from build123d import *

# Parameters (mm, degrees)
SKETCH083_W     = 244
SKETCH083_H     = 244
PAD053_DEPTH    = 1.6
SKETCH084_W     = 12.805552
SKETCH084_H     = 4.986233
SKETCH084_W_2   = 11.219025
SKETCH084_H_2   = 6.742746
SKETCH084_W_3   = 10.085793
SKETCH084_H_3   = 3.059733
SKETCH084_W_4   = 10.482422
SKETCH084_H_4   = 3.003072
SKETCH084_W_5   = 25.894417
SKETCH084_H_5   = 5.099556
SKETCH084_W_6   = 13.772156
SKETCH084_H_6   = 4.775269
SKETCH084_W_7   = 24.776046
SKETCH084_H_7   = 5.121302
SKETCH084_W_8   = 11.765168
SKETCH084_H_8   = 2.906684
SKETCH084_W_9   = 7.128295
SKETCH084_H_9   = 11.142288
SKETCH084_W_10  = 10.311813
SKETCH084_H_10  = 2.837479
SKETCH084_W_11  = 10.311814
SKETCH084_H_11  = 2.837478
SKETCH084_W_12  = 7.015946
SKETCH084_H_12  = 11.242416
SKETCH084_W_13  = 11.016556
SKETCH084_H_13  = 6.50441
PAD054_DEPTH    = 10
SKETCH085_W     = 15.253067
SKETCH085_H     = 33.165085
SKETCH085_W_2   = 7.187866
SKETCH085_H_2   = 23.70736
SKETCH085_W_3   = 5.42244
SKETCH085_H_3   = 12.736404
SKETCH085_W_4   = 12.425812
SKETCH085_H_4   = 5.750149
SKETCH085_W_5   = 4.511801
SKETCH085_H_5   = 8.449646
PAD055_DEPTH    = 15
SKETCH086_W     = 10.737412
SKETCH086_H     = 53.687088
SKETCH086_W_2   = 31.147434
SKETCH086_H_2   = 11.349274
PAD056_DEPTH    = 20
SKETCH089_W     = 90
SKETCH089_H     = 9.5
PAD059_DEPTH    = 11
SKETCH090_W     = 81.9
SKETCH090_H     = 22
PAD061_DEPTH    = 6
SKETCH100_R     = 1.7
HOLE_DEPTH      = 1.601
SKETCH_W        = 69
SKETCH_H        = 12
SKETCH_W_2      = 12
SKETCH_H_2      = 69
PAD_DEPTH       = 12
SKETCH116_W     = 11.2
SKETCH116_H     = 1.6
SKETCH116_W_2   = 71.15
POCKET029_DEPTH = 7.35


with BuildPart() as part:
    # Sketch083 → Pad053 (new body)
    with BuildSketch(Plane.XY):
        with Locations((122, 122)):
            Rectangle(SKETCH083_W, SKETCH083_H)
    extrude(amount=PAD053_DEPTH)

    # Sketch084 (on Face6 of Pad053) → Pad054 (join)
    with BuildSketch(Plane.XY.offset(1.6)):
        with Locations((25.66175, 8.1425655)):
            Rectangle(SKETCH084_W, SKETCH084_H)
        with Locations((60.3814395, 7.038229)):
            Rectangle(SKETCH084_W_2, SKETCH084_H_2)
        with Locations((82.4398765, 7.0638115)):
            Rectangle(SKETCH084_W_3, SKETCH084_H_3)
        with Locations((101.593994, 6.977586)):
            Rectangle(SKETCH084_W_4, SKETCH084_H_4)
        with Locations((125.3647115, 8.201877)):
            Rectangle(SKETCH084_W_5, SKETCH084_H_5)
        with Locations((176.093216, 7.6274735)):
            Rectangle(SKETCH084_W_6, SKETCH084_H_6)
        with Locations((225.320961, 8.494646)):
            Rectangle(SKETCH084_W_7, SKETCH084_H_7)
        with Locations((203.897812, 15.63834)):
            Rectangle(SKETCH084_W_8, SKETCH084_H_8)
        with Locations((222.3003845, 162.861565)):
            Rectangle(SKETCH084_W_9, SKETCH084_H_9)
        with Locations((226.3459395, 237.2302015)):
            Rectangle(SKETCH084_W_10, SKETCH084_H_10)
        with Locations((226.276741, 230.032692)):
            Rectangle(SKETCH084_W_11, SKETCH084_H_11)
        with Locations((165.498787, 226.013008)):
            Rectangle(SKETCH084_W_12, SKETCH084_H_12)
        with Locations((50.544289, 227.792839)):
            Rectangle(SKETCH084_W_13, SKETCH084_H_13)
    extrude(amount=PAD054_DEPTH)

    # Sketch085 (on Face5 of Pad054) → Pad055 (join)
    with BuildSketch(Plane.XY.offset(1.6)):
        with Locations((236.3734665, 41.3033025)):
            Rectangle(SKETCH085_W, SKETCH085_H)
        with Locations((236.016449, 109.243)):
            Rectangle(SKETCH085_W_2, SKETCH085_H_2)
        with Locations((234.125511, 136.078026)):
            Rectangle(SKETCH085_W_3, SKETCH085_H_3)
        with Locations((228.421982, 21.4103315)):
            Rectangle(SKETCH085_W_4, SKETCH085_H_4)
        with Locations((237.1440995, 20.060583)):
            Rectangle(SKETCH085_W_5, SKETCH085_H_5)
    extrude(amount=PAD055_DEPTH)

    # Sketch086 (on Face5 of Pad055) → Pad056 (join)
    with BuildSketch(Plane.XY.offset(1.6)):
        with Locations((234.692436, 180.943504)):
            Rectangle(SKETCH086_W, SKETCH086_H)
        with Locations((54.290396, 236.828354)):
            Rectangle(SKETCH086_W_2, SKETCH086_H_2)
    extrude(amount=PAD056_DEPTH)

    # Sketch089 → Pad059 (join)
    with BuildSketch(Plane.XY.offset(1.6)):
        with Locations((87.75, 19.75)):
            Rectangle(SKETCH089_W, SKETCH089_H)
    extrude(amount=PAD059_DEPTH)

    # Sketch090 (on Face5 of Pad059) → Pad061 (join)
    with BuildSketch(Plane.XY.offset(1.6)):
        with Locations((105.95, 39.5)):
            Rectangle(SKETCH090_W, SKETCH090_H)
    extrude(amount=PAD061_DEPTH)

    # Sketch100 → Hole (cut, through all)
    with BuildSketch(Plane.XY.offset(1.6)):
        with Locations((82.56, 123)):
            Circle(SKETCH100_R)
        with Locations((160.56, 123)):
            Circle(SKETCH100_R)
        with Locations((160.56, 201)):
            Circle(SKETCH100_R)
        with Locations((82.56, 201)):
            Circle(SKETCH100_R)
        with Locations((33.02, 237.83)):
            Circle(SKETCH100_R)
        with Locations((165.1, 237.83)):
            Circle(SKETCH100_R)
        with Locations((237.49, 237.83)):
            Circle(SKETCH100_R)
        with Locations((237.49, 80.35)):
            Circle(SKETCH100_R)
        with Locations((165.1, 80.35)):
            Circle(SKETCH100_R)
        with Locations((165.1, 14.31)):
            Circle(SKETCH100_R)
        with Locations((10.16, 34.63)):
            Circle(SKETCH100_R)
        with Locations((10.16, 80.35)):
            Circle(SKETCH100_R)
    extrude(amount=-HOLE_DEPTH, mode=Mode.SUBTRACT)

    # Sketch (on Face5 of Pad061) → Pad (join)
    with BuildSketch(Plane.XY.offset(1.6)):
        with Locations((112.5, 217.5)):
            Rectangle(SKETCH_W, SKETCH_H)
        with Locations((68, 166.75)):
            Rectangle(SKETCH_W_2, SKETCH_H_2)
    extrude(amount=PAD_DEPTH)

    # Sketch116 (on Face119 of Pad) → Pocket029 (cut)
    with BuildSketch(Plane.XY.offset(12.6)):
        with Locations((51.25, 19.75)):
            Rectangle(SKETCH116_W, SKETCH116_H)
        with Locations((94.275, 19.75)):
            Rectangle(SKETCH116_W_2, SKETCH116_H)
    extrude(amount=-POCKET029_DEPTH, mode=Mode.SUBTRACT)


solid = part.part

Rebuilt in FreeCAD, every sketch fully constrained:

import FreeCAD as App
import Part
import Sketcher

V = App.Vector
Q = App.Units.Quantity

doc = App.newDocument("Part")
params = doc.addObject("Spreadsheet::Sheet", "Params")
for row, (alias, value) in enumerate([
    ("sketch1_width", "244 mm"),
    ("pad1_length", "1.6 mm"),
    ("pad2_length", "10 mm"),
    ("pad3_length", "15 mm"),
    ("pad4_length", "20 mm"),
    ("sketch5_width", "90 mm"),
    ("sketch5_height", "9.5 mm"),
    ("pad5_length", "11 mm"),
    ("sketch6_height", "22 mm"),
    ("sketch6_width", "81.9 mm"),
    ("pad6_length", "6 mm"),
    ("sketch7_diameter", "3.4 mm"),
    ("sketch8_width", "69 mm"),
    ("sketch8_width2", "12 mm"),
    ("pad7_length", "12 mm"),
    ("sketch9_width", "11.2 mm"),
    ("sketch9_height", "1.6 mm"),
    ("sketch9_width2", "71.15 mm"),
    ("pocket2_length", "7.35 mm"),
], start=1):
    params.set(f"A{row}", alias)
    params.set(f"B{row}", "=" + value)
    params.setAlias(f"B{row}", alias)

body = doc.addObject("PartDesign::Body", "Body")

sketch1 = body.newObject("Sketcher::SketchObject", "Sketch")
sketch1.AttachmentSupport = (doc.getObject("XY_Plane"), [""])
sketch1.MapMode = "FlatFace"
sketch1.addGeometry([
    Part.LineSegment(V(0, 244, 0), V(0, 0, 0)),
    Part.LineSegment(V(0, 0, 0), V(244, 0, 0)),
    Part.LineSegment(V(244, 0, 0), V(244, 244, 0)),
    Part.LineSegment(V(244, 244, 0), V(0, 244, 0)),
], False)
sketch1.addConstraint([
    Sketcher.Constraint("Coincident", 0, 2, 1, 1),
    Sketcher.Constraint("Coincident", 1, 2, 2, 1),
    Sketcher.Constraint("Coincident", 2, 2, 3, 1),
    Sketcher.Constraint("Coincident", 3, 2, 0, 1),
    Sketcher.Constraint("Vertical", 0),
    Sketcher.Constraint("Horizontal", 1),
    Sketcher.Constraint("Vertical", 2),
    Sketcher.Constraint("Horizontal", 3),
    Sketcher.Constraint("Coincident", 0, 2, -1, 1),
    Sketcher.Constraint("Equal", 3, 0),
    Sketcher.Constraint("DistanceX", 1, 1, 1, 2, Q("244 mm")),
])
sketch1.setExpression("Constraints[10]", "Params.sketch1_width")
pad1 = body.newObject("PartDesign::Pad", "Pad")
pad1.Profile = sketch1
pad1.setExpression("Length", "Params.pad1_length")

sketch2 = body.newObject("Sketcher::SketchObject", "Sketch001")
sketch2.AttachmentSupport = (doc.getObject("XY_Plane"), [""])
sketch2.MapMode = "FlatFace"
sketch2.AttachmentOffset = App.Placement(V(0, 0, 1.6), App.Rotation())
sketch2.addGeometry([
    Part.LineSegment(V(19.3, 10.6, 0), V(19.3, 5.6, 0)),
    Part.LineSegment(V(19.3, 5.6, 0), V(32.1, 5.6, 0)),
    Part.LineSegment(V(32.1, 5.6, 0), V(32.1, 10.6, 0)),
    Part.LineSegment(V(32.1, 10.6, 0), V(19.3, 10.6, 0)),
    Part.LineSegment(V(54.8, 10.4, 0), V(54.8, 3.7, 0)),
    Part.LineSegment(V(54.8, 3.7, 0), V(66, 3.7, 0)),
    Part.LineSegment(V(66, 3.7, 0), V(66, 10.4, 0)),
    Part.LineSegment(V(66, 10.4, 0), V(54.8, 10.4, 0)),
    Part.LineSegment(V(77.4, 8.6, 0), V(77.4, 5.5, 0)),
    Part.LineSegment(V(77.4, 5.5, 0), V(87.5, 5.5, 0)),
    Part.LineSegment(V(87.5, 5.5, 0), V(87.5, 8.6, 0)),
    Part.LineSegment(V(87.5, 8.6, 0), V(77.4, 8.6, 0)),
    Part.LineSegment(V(96.4, 8.5, 0), V(96.4, 5.5, 0)),
    Part.LineSegment(V(96.4, 5.5, 0), V(106.8, 5.5, 0)),
    Part.LineSegment(V(106.8, 5.5, 0), V(106.8, 8.5, 0)),
    Part.LineSegment(V(106.8, 8.5, 0), V(96.4, 8.5, 0)),
    Part.LineSegment(V(112.4, 10.8, 0), V(112.4, 5.7, 0)),
    Part.LineSegment(V(112.4, 5.7, 0), V(138.3, 5.7, 0)),
    Part.LineSegment(V(138.3, 5.7, 0), V(138.3, 10.8, 0)),
    Part.LineSegment(V(138.3, 10.8, 0), V(112.4, 10.8, 0)),
    Part.LineSegment(V(169.2, 10, 0), V(169.2, 5.2, 0)),
    Part.LineSegment(V(169.2, 5.2, 0), V(183, 5.2, 0)),
    Part.LineSegment(V(183, 5.2, 0), V(183, 10, 0)),
    Part.LineSegment(V(183, 10, 0), V(169.2, 10, 0)),
    Part.LineSegment(V(212.9, 11.1, 0), V(212.9, 5.9, 0)),
    Part.LineSegment(V(212.9, 5.9, 0), V(237.7, 5.9, 0)),
    Part.LineSegment(V(237.7, 5.9, 0), V(237.7, 11.1, 0)),
    Part.LineSegment(V(237.7, 11.1, 0), V(212.9, 11.1, 0)),
    Part.LineSegment(V(198, 17.1, 0), V(198, 14.2, 0)),
    Part.LineSegment(V(198, 14.2, 0), V(209.8, 14.2, 0)),
    Part.LineSegment(V(209.8, 14.2, 0), V(209.8, 17.1, 0)),
    Part.LineSegment(V(209.8, 17.1, 0), V(198, 17.1, 0)),
    Part.LineSegment(V(218.7, 168.4, 0), V(218.7, 157.3, 0)),
    Part.LineSegment(V(218.7, 157.3, 0), V(225.9, 157.3, 0)),
    Part.LineSegment(V(225.9, 157.3, 0), V(225.9, 168.4, 0)),
    Part.LineSegment(V(225.9, 168.4, 0), V(218.7, 168.4, 0)),
    Part.LineSegment(V(221.2, 238.6, 0), V(221.2, 235.8, 0)),
    Part.LineSegment(V(221.2, 235.8, 0), V(231.5, 235.8, 0)),
    Part.LineSegment(V(231.5, 235.8, 0), V(231.5, 238.6, 0)),
    Part.LineSegment(V(231.5, 238.6, 0), V(221.2, 238.6, 0)),
    Part.LineSegment(V(221.1, 231.5, 0), V(221.1, 228.6, 0)),
    Part.LineSegment(V(221.1, 228.6, 0), V(231.4, 228.6, 0)),
    Part.LineSegment(V(231.4, 228.6, 0), V(231.4, 231.5, 0)),
    Part.LineSegment(V(231.4, 231.5, 0), V(221.1, 231.5, 0)),
    Part.LineSegment(V(162, 231.6, 0), V(162, 220.4, 0)),
    Part.LineSegment(V(162, 220.4, 0), V(169, 220.4, 0)),
    Part.LineSegment(V(169, 220.4, 0), V(169, 231.6, 0)),
    Part.LineSegment(V(169, 231.6, 0), V(162, 231.6, 0)),
    Part.LineSegment(V(45, 231, 0), V(45, 224.5, 0)),
    Part.LineSegment(V(45, 224.5, 0), V(56.1, 224.5, 0)),
    Part.LineSegment(V(56.1, 224.5, 0), V(56.1, 231, 0)),
    Part.LineSegment(V(56.1, 231, 0), V(45, 231, 0)),
], False)
sketch2.addConstraint([
    Sketcher.Constraint("Coincident", 0, 2, 1, 1),
    Sketcher.Constraint("Coincident", 1, 2, 2, 1),
    Sketcher.Constraint("Coincident", 2, 2, 3, 1),
    Sketcher.Constraint("Coincident", 3, 2, 0, 1),
    Sketcher.Constraint("Coincident", 4, 2, 5, 1),
    Sketcher.Constraint("Coincident", 5, 2, 6, 1),
    Sketcher.Constraint("Coincident", 6, 2, 7, 1),
    Sketcher.Constraint("Coincident", 7, 2, 4, 1),
    Sketcher.Constraint("Coincident", 8, 2, 9, 1),
    Sketcher.Constraint("Coincident", 9, 2, 10, 1),
    Sketcher.Constraint("Coincident", 10, 2, 11, 1),
    Sketcher.Constraint("Coincident", 11, 2, 8, 1),
    Sketcher.Constraint("Coincident", 12, 2, 13, 1),
    Sketcher.Constraint("Coincident", 13, 2, 14, 1),
    Sketcher.Constraint("Coincident", 14, 2, 15, 1),
    Sketcher.Constraint("Coincident", 15, 2, 12, 1),
    Sketcher.Constraint("Coincident", 16, 2, 17, 1),
    Sketcher.Constraint("Coincident", 17, 2, 18, 1),
    Sketcher.Constraint("Coincident", 18, 2, 19, 1),
    Sketcher.Constraint("Coincident", 19, 2, 16, 1),
    Sketcher.Constraint("Coincident", 20, 2, 21, 1),
    Sketcher.Constraint("Coincident", 21, 2, 22, 1),
    Sketcher.Constraint("Coincident", 22, 2, 23, 1),
    Sketcher.Constraint("Coincident", 23, 2, 20, 1),
    Sketcher.Constraint("Coincident", 24, 2, 25, 1),
    Sketcher.Constraint("Coincident", 25, 2, 26, 1),
    Sketcher.Constraint("Coincident", 26, 2, 27, 1),
    Sketcher.Constraint("Coincident", 27, 2, 24, 1),
    Sketcher.Constraint("Coincident", 28, 2, 29, 1),
    Sketcher.Constraint("Coincident", 29, 2, 30, 1),
    Sketcher.Constraint("Coincident", 30, 2, 31, 1),
    Sketcher.Constraint("Coincident", 31, 2, 28, 1),
    Sketcher.Constraint("Coincident", 32, 2, 33, 1),
    Sketcher.Constraint("Coincident", 33, 2, 34, 1),
    Sketcher.Constraint("Coincident", 34, 2, 35, 1),
    Sketcher.Constraint("Coincident", 35, 2, 32, 1),
    Sketcher.Constraint("Coincident", 36, 2, 37, 1),
    Sketcher.Constraint("Coincident", 37, 2, 38, 1),
    Sketcher.Constraint("Coincident", 38, 2, 39, 1),
    Sketcher.Constraint("Coincident", 39, 2, 36, 1),
    Sketcher.Constraint("Coincident", 40, 2, 41, 1),
    Sketcher.Constraint("Coincident", 41, 2, 42, 1),
    Sketcher.Constraint("Coincident", 42, 2, 43, 1),
    Sketcher.Constraint("Coincident", 43, 2, 40, 1),
    Sketcher.Constraint("Coincident", 44, 2, 45, 1),
    Sketcher.Constraint("Coincident", 45, 2, 46, 1),
    Sketcher.Constraint("Coincident", 46, 2, 47, 1),
    Sketcher.Constraint("Coincident", 47, 2, 44, 1),
    Sketcher.Constraint("Coincident", 48, 2, 49, 1),
    Sketcher.Constraint("Coincident", 49, 2, 50, 1),
    Sketcher.Constraint("Coincident", 50, 2, 51, 1),
    Sketcher.Constraint("Coincident", 51, 2, 48, 1),
    Sketcher.Constraint("Vertical", 0),
    Sketcher.Constraint("Horizontal", 1),
    Sketcher.Constraint("Vertical", 2),
    Sketcher.Constraint("Horizontal", 3),
    Sketcher.Constraint("Vertical", 4),
    Sketcher.Constraint("Horizontal", 5),
    Sketcher.Constraint("Vertical", 6),
    Sketcher.Constraint("Horizontal", 7),
    Sketcher.Constraint("Vertical", 8),
    Sketcher.Constraint("Horizontal", 9),
    Sketcher.Constraint("Vertical", 10),
    Sketcher.Constraint("Horizontal", 11),
    Sketcher.Constraint("Vertical", 12),
    Sketcher.Constraint("Horizontal", 13),
    Sketcher.Constraint("Vertical", 14),
    Sketcher.Constraint("Horizontal", 15),
    Sketcher.Constraint("Vertical", 16),
    Sketcher.Constraint("Horizontal", 17),
    Sketcher.Constraint("Vertical", 18),
    Sketcher.Constraint("Horizontal", 19),
    Sketcher.Constraint("Vertical", 20),
    Sketcher.Constraint("Horizontal", 21),
    Sketcher.Constraint("Vertical", 22),
    Sketcher.Constraint("Horizontal", 23),
    Sketcher.Constraint("Vertical", 24),
    Sketcher.Constraint("Horizontal", 25),
    Sketcher.Constraint("Vertical", 26),
    Sketcher.Constraint("Horizontal", 27),
    Sketcher.Constraint("Vertical", 28),
    Sketcher.Constraint("Horizontal", 29),
    Sketcher.Constraint("Vertical", 30),
    Sketcher.Constraint("Horizontal", 31),
    Sketcher.Constraint("Vertical", 32),
    Sketcher.Constraint("Horizontal", 33),
    Sketcher.Constraint("Vertical", 34),
    Sketcher.Constraint("Horizontal", 35),
    Sketcher.Constraint("Vertical", 36),
    Sketcher.Constraint("Horizontal", 37),
    Sketcher.Constraint("Vertical", 38),
    Sketcher.Constraint("Horizontal", 39),
    Sketcher.Constraint("Vertical", 40),
    Sketcher.Constraint("Horizontal", 41),
    Sketcher.Constraint("Vertical", 42),
    Sketcher.Constraint("Horizontal", 43),
    Sketcher.Constraint("Vertical", 44),
    Sketcher.Constraint("Horizontal", 45),
    Sketcher.Constraint("Vertical", 46),
    Sketcher.Constraint("Horizontal", 47),
    Sketcher.Constraint("Vertical", 48),
    Sketcher.Constraint("Horizontal", 49),
    Sketcher.Constraint("Vertical", 50),
    Sketcher.Constraint("Horizontal", 51),
    Sketcher.Constraint("Equal", 39, 41),
    Sketcher.Constraint("Equal", 38, 40),
    Sketcher.Constraint("DistanceY", 24, 2, 24, 1, Q("5.121302 mm")),
    Sketcher.Constraint("DistanceY", 20, 2, 20, 1, Q("4.775269 mm")),
    Sketcher.Constraint("DistanceY", 36, 2, 36, 1, Q("2.837479 mm")),
    Sketcher.Constraint("DistanceY", 48, 2, 48, 1, Q("6.50441 mm")),
    Sketcher.Constraint("DistanceY", -1, 1, 16, 2, Q("5.652099 mm")),
    Sketcher.Constraint("DistanceY", -1, 1, 44, 2, Q("220.3918 mm")),
    Sketcher.Constraint("DistanceX", 1, 2, 4, 2, Q("22.707401 mm")),
    Sketcher.Constraint("DistanceX", 20, 2, 24, 2, Q("43.7258 mm")),
    Sketcher.Constraint("DistanceY", 27, 2, 28, 2, Q("3.129701 mm")),
    Sketcher.Constraint("DistanceX", 22, 2, 29, 2, Q("26.801102 mm")),
    Sketcher.Constraint("DistanceX", 27, 2, 32, 2, Q("5.803299 mm")),
    Sketcher.Constraint("DistanceX", 36, 2, 34, 2, Q("4.674499 mm")),
    Sketcher.Constraint("DistanceX", 40, 2, 36, 2, Q("0.069199 mm")),
    Sketcher.Constraint("DistanceX", 1, 1, 1, 2, Q("12.805552 mm")),
    Sketcher.Constraint("DistanceX", 5, 1, 5, 2, Q("11.219025 mm")),
    Sketcher.Constraint("DistanceX", 9, 1, 9, 2, Q("10.085793 mm")),
    Sketcher.Constraint("DistanceX", 13, 1, 13, 2, Q("10.482422 mm")),
    Sketcher.Constraint("DistanceX", 17, 1, 17, 2, Q("25.894417 mm")),
    Sketcher.Constraint("DistanceX", 21, 1, 21, 2, Q("13.772156 mm")),
    Sketcher.Constraint("DistanceX", 25, 1, 25, 2, Q("24.776046 mm")),
    Sketcher.Constraint("DistanceX", 29, 1, 29, 2, Q("11.765168 mm")),
    Sketcher.Constraint("DistanceX", 33, 1, 33, 2, Q("7.128295 mm")),
    Sketcher.Constraint("DistanceX", 37, 1, 37, 2, Q("10.311813 mm")),
    Sketcher.Constraint("DistanceX", 45, 1, 45, 2, Q("7.015946 mm")),
    Sketcher.Constraint("DistanceX", 49, 1, 49, 2, Q("11.016556 mm")),
    Sketcher.Constraint("DistanceY", 0, 2, 0, 1, Q("4.986233 mm")),
    Sketcher.Constraint("DistanceY", 4, 2, 4, 1, Q("6.742746 mm")),
    Sketcher.Constraint("DistanceY", 8, 2, 8, 1, Q("3.059733 mm")),
    Sketcher.Constraint("DistanceY", 12, 2, 12, 1, Q("3.003072 mm")),
    Sketcher.Constraint("DistanceY", 16, 2, 16, 1, Q("5.099556 mm")),
    Sketcher.Constraint("DistanceY", 28, 2, 28, 1, Q("2.906684 mm")),
    Sketcher.Constraint("DistanceY", 32, 2, 32, 1, Q("11.142288 mm")),
    Sketcher.Constraint("DistanceY", 44, 2, 44, 1, Q("11.242416 mm")),
    Sketcher.Constraint("DistanceY", -1, 1, 0, 2, Q("5.649449 mm")),
    Sketcher.Constraint("DistanceX", -1, 1, 5, 2, Q("65.990952 mm")),
    Sketcher.Constraint("DistanceX", -1, 1, 8, 2, Q("77.39698 mm")),
    Sketcher.Constraint("DistanceY", -1, 1, 12, 2, Q("5.47605 mm")),
    Sketcher.Constraint("DistanceX", -1, 1, 17, 2, Q("138.31192 mm")),
    Sketcher.Constraint("DistanceY", -1, 1, 20, 2, Q("5.239839 mm")),
    Sketcher.Constraint("DistanceX", -1, 1, 24, 2, Q("212.932938 mm")),
    Sketcher.Constraint("DistanceY", -1, 1, 30, 2, Q("17.091682 mm")),
    Sketcher.Constraint("DistanceY", -1, 1, 32, 2, Q("157.290421 mm")),
    Sketcher.Constraint("DistanceY", -1, 1, 36, 2, Q("235.811462 mm")),
    Sketcher.Constraint("DistanceY", -1, 1, 42, 2, Q("231.451431 mm")),
    Sketcher.Constraint("DistanceX", -1, 1, 45, 2, Q("169.00676 mm")),
    Sketcher.Constraint("DistanceX", -1, 1, 48, 2, Q("45.036011 mm")),
    Sketcher.Constraint("DistanceY", 6, 2, 2, 2, Q("0.22608 mm")),
    Sketcher.Constraint("DistanceY", 5, 2, 8, 2, Q("1.867089 mm")),
    Sketcher.Constraint("DistanceX", 9, 2, 12, 2, Q("8.87001 mm")),
    Sketcher.Constraint("DistanceY", 48, 2, 47, 2, Q("7.093582 mm")),
])
pad2 = body.newObject("PartDesign::Pad", "Pad001")
pad2.Profile = sketch2
pad2.setExpression("Length", "Params.pad2_length")

sketch3 = body.newObject("Sketcher::SketchObject", "Sketch002")
sketch3.AttachmentSupport = (doc.getObject("XY_Plane"), [""])
sketch3.MapMode = "FlatFace"
sketch3.AttachmentOffset = App.Placement(V(0, 0, 1.6), App.Rotation())
sketch3.addGeometry([
    Part.LineSegment(V(228.7, 57.9, 0), V(228.7, 24.7, 0)),
    Part.LineSegment(V(228.7, 24.7, 0), V(244, 24.7, 0)),
    Part.LineSegment(V(244, 24.7, 0), V(244, 57.9, 0)),
    Part.LineSegment(V(244, 57.9, 0), V(228.7, 57.9, 0)),
    Part.LineSegment(V(232.4, 121.1, 0), V(232.4, 97.4, 0)),
    Part.LineSegment(V(232.4, 97.4, 0), V(239.6, 97.4, 0)),
    Part.LineSegment(V(239.6, 97.4, 0), V(239.6, 121.1, 0)),
    Part.LineSegment(V(239.6, 121.1, 0), V(232.4, 121.1, 0)),
    Part.LineSegment(V(231.4, 142.4, 0), V(231.4, 129.7, 0)),
    Part.LineSegment(V(231.4, 129.7, 0), V(236.8, 129.7, 0)),
    Part.LineSegment(V(236.8, 129.7, 0), V(236.8, 142.4, 0)),
    Part.LineSegment(V(236.8, 142.4, 0), V(231.4, 142.4, 0)),
    Part.LineSegment(V(222.2, 24.3, 0), V(222.2, 18.5, 0)),
    Part.LineSegment(V(222.2, 18.5, 0), V(234.6, 18.5, 0)),
    Part.LineSegment(V(234.6, 18.5, 0), V(234.6, 24.3, 0)),
    Part.LineSegment(V(234.6, 24.3, 0), V(222.2, 24.3, 0)),
    Part.LineSegment(V(234.9, 24.3, 0), V(234.9, 15.8, 0)),
    Part.LineSegment(V(234.9, 15.8, 0), V(239.4, 15.8, 0)),
    Part.LineSegment(V(239.4, 15.8, 0), V(239.4, 24.3, 0)),
    Part.LineSegment(V(239.4, 24.3, 0), V(234.9, 24.3, 0)),
], False)
sketch3.addConstraint([
    Sketcher.Constraint("Coincident", 0, 2, 1, 1),
    Sketcher.Constraint("Coincident", 1, 2, 2, 1),
    Sketcher.Constraint("Coincident", 2, 2, 3, 1),
    Sketcher.Constraint("Coincident", 3, 2, 0, 1),
    Sketcher.Constraint("Coincident", 4, 2, 5, 1),
    Sketcher.Constraint("Coincident", 5, 2, 6, 1),
    Sketcher.Constraint("Coincident", 6, 2, 7, 1),
    Sketcher.Constraint("Coincident", 7, 2, 4, 1),
    Sketcher.Constraint("Coincident", 8, 2, 9, 1),
    Sketcher.Constraint("Coincident", 9, 2, 10, 1),
    Sketcher.Constraint("Coincident", 10, 2, 11, 1),
    Sketcher.Constraint("Coincident", 11, 2, 8, 1),
    Sketcher.Constraint("Coincident", 12, 2, 13, 1),
    Sketcher.Constraint("Coincident", 13, 2, 14, 1),
    Sketcher.Constraint("Coincident", 14, 2, 15, 1),
    Sketcher.Constraint("Coincident", 15, 2, 12, 1),
    Sketcher.Constraint("Coincident", 16, 2, 17, 1),
    Sketcher.Constraint("Coincident", 17, 2, 18, 1),
    Sketcher.Constraint("Coincident", 18, 2, 19, 1),
    Sketcher.Constraint("Coincident", 19, 2, 16, 1),
    Sketcher.Constraint("Vertical", 0),
    Sketcher.Constraint("Horizontal", 1),
    Sketcher.Constraint("Vertical", 2),
    Sketcher.Constraint("Horizontal", 3),
    Sketcher.Constraint("Vertical", 4),
    Sketcher.Constraint("Horizontal", 5),
    Sketcher.Constraint("Vertical", 6),
    Sketcher.Constraint("Horizontal", 7),
    Sketcher.Constraint("Vertical", 8),
    Sketcher.Constraint("Horizontal", 9),
    Sketcher.Constraint("Vertical", 10),
    Sketcher.Constraint("Horizontal", 11),
    Sketcher.Constraint("Vertical", 12),
    Sketcher.Constraint("Horizontal", 13),
    Sketcher.Constraint("Vertical", 14),
    Sketcher.Constraint("Horizontal", 15),
    Sketcher.Constraint("Vertical", 16),
    Sketcher.Constraint("Horizontal", 17),
    Sketcher.Constraint("Vertical", 18),
    Sketcher.Constraint("Horizontal", 19),
    Sketcher.Constraint("Horizontal", 15, 2, 18, 2),
    Sketcher.Constraint("DistanceX", -1, 1, 1, 2, Q("244 mm")),
    Sketcher.Constraint("DistanceX", -1, 1, 17, 2, Q("239.4 mm")),
    Sketcher.Constraint("DistanceX", 17, 1, 17, 2, Q("4.511801 mm")),
    Sketcher.Constraint("DistanceY", 16, 2, 0, 2, Q("8.885 mm")),
    Sketcher.Constraint("DistanceX", 9, 1, 9, 2, Q("5.42244 mm")),
    Sketcher.Constraint("DistanceX", 13, 1, 13, 2, Q("12.425812 mm")),
    Sketcher.Constraint("DistanceY", 4, 2, 4, 1, Q("23.70736 mm")),
    Sketcher.Constraint("DistanceY", 12, 2, 12, 1, Q("5.750149 mm")),
    Sketcher.Constraint("DistanceX", 1, 1, 1, 2, Q("15.253067 mm")),
    Sketcher.Constraint("DistanceX", 5, 1, 5, 2, Q("7.187866 mm")),
    Sketcher.Constraint("DistanceY", 0, 2, 0, 1, Q("33.165085 mm")),
    Sketcher.Constraint("DistanceY", 8, 2, 8, 1, Q("12.736404 mm")),
    Sketcher.Constraint("DistanceY", 16, 2, 16, 1, Q("8.449646 mm")),
    Sketcher.Constraint("DistanceY", -1, 1, 0, 2, Q("24.72076 mm")),
    Sketcher.Constraint("DistanceY", -1, 1, 4, 2, Q("97.38932 mm")),
    Sketcher.Constraint("DistanceX", -1, 1, 5, 2, Q("239.610382 mm")),
    Sketcher.Constraint("DistanceX", -1, 1, 8, 2, Q("231.414291 mm")),
    Sketcher.Constraint("DistanceY", 3, 2, 8, 2, Q("71.823979 mm")),
    Sketcher.Constraint("DistanceX", 12, 2, 4, 2, Q("10.21344 mm")),
])
pad3 = body.newObject("PartDesign::Pad", "Pad002")
pad3.Profile = sketch3
pad3.setExpression("Length", "Params.pad3_length")

sketch4 = body.newObject("Sketcher::SketchObject", "Sketch003")
sketch4.AttachmentSupport = (doc.getObject("XY_Plane"), [""])
sketch4.MapMode = "FlatFace"
sketch4.AttachmentOffset = App.Placement(V(0, 0, 1.6), App.Rotation())
sketch4.addGeometry([
    Part.LineSegment(V(229, 208, 0), V(229, 154, 0)),
    Part.LineSegment(V(229, 154, 0), V(240, 154, 0)),
    Part.LineSegment(V(240, 154, 0), V(240, 208, 0)),
    Part.LineSegment(V(240, 208, 0), V(229, 208, 0)),
    Part.LineSegment(V(39, 243, 0), V(39, 231, 0)),
    Part.LineSegment(V(39, 231, 0), V(70, 231, 0)),
    Part.LineSegment(V(70, 231, 0), V(70, 243, 0)),
    Part.LineSegment(V(70, 243, 0), V(39, 243, 0)),
], False)
sketch4.addConstraint([
    Sketcher.Constraint("Coincident", 0, 2, 1, 1),
    Sketcher.Constraint("Coincident", 1, 2, 2, 1),
    Sketcher.Constraint("Coincident", 2, 2, 3, 1),
    Sketcher.Constraint("Coincident", 3, 2, 0, 1),
    Sketcher.Constraint("Coincident", 4, 2, 5, 1),
    Sketcher.Constraint("Coincident", 5, 2, 6, 1),
    Sketcher.Constraint("Coincident", 6, 2, 7, 1),
    Sketcher.Constraint("Coincident", 7, 2, 4, 1),
    Sketcher.Constraint("Vertical", 0),
    Sketcher.Constraint("Horizontal", 1),
    Sketcher.Constraint("Vertical", 2),
    Sketcher.Constraint("Horizontal", 3),
    Sketcher.Constraint("Vertical", 4),
    Sketcher.Constraint("Horizontal", 5),
    Sketcher.Constraint("Vertical", 6),
    Sketcher.Constraint("Horizontal", 7),
    Sketcher.Constraint("DistanceX", 1, 1, 1, 2, Q("10.737412 mm")),
    Sketcher.Constraint("DistanceX", 5, 1, 5, 2, Q("31.147434 mm")),
    Sketcher.Constraint("DistanceY", 0, 2, 0, 1, Q("53.687088 mm")),
    Sketcher.Constraint("DistanceY", 4, 2, 4, 1, Q("11.349274 mm")),
    Sketcher.Constraint("DistanceX", -1, 1, 0, 2, Q("229.32373 mm")),
    Sketcher.Constraint("DistanceY", -1, 1, 0, 2, Q("154.09996 mm")),
    Sketcher.Constraint("DistanceX", -1, 1, 4, 2, Q("38.716679 mm")),
    Sketcher.Constraint("DistanceY", -1, 1, 6, 2, Q("242.502991 mm")),
])
pad4 = body.newObject("PartDesign::Pad", "Pad003")
pad4.Profile = sketch4
pad4.setExpression("Length", "Params.pad4_length")

sketch5 = body.newObject("Sketcher::SketchObject", "Sketch004")
sketch5.AttachmentSupport = (doc.getObject("XY_Plane"), [""])
sketch5.MapMode = "FlatFace"
sketch5.AttachmentOffset = App.Placement(V(0, 0, 1.6), App.Rotation())
sketch5.addGeometry([
    Part.LineSegment(V(43, 24, 0), V(43, 15, 0)),
    Part.LineSegment(V(43, 15, 0), V(133, 15, 0)),
    Part.LineSegment(V(133, 15, 0), V(133, 24, 0)),
    Part.LineSegment(V(133, 24, 0), V(43, 24, 0)),
], False)
sketch5.addConstraint([
    Sketcher.Constraint("Coincident", 0, 2, 1, 1),
    Sketcher.Constraint("Coincident", 1, 2, 2, 1),
    Sketcher.Constraint("Coincident", 2, 2, 3, 1),
    Sketcher.Constraint("Coincident", 3, 2, 0, 1),
    Sketcher.Constraint("Vertical", 0),
    Sketcher.Constraint("Horizontal", 1),
    Sketcher.Constraint("Vertical", 2),
    Sketcher.Constraint("Horizontal", 3),
    Sketcher.Constraint("DistanceX", 1, 1, 1, 2, Q("90 mm")),
    Sketcher.Constraint("DistanceY", 0, 2, 0, 1, Q("9.5 mm")),
    Sketcher.Constraint("DistanceY", -1, 1, 0, 2, Q("15 mm")),
    Sketcher.Constraint("DistanceX", -1, 1, 0, 2, Q("42.75 mm")),
])
sketch5.setExpression("Constraints[8]", "Params.sketch5_width")
sketch5.setExpression("Constraints[9]", "Params.sketch5_height")
pad5 = body.newObject("PartDesign::Pad", "Pad004")
pad5.Profile = sketch5
pad5.setExpression("Length", "Params.pad5_length")

sketch6 = body.newObject("Sketcher::SketchObject", "Sketch005")
sketch6.AttachmentSupport = (doc.getObject("XY_Plane"), [""])
sketch6.MapMode = "FlatFace"
sketch6.AttachmentOffset = App.Placement(V(0, 0, 1.6), App.Rotation())
sketch6.addGeometry([
    Part.LineSegment(V(65, 50, 0), V(65, 28, 0)),
    Part.LineSegment(V(65, 28, 0), V(147, 28, 0)),
    Part.LineSegment(V(147, 28, 0), V(147, 50, 0)),
    Part.LineSegment(V(147, 50, 0), V(65, 50, 0)),
], False)
sketch6.addConstraint([
    Sketcher.Constraint("Coincident", 0, 2, 1, 1),
    Sketcher.Constraint("Coincident", 1, 2, 2, 1),
    Sketcher.Constraint("Coincident", 2, 2, 3, 1),
    Sketcher.Constraint("Coincident", 3, 2, 0, 1),
    Sketcher.Constraint("Vertical", 0),
    Sketcher.Constraint("Horizontal", 1),
    Sketcher.Constraint("Vertical", 2),
    Sketcher.Constraint("Horizontal", 3),
    Sketcher.Constraint("DistanceY", 0, 2, 0, 1, Q("22 mm")),
    Sketcher.Constraint("DistanceX", 1, 1, 1, 2, Q("81.9 mm")),
    Sketcher.Constraint("DistanceX", -1, 1, 0, 2, Q("65 mm")),
    Sketcher.Constraint("DistanceY", -1, 1, 0, 2, Q("28.5 mm")),
])
sketch6.setExpression("Constraints[8]", "Params.sketch6_height")
sketch6.setExpression("Constraints[9]", "Params.sketch6_width")
pad6 = body.newObject("PartDesign::Pad", "Pad005")
pad6.Profile = sketch6
pad6.setExpression("Length", "Params.pad6_length")

sketch7 = body.newObject("Sketcher::SketchObject", "Sketch006")
sketch7.AttachmentSupport = (doc.getObject("XY_Plane"), [""])
sketch7.MapMode = "FlatFace"
sketch7.AttachmentOffset = App.Placement(V(0, 0, 1.6), App.Rotation())
sketch7.addGeometry([
    Part.Circle(V(82.6, 123, 0), V(0, 0, 1), 1.7),
    Part.Circle(V(160.6, 123, 0), V(0, 0, 1), 1.7),
    Part.Circle(V(160.6, 201, 0), V(0, 0, 1), 1.7),
    Part.Circle(V(82.6, 201, 0), V(0, 0, 1), 1.7),
    Part.Circle(V(33, 237.8, 0), V(0, 0, 1), 1.7),
    Part.Circle(V(165.1, 237.8, 0), V(0, 0, 1), 1.7),
    Part.Circle(V(237.5, 237.8, 0), V(0, 0, 1), 1.7),
    Part.Circle(V(237.5, 80.3, 0), V(0, 0, 1), 1.7),
    Part.Circle(V(165.1, 80.3, 0), V(0, 0, 1), 1.7),
    Part.Circle(V(165.1, 14.3, 0), V(0, 0, 1), 1.7),
    Part.Circle(V(10.2, 34.6, 0), V(0, 0, 1), 1.7),
    Part.Circle(V(10.2, 80.3, 0), V(0, 0, 1), 1.7),
], False)
sketch7.addConstraint([
    Sketcher.Constraint("Equal", 0, 1),
    Sketcher.Constraint("Equal", 1, 2),
    Sketcher.Constraint("Equal", 2, 3),
    Sketcher.Constraint("Equal", 3, 4),
    Sketcher.Constraint("Equal", 4, 5),
    Sketcher.Constraint("Equal", 5, 6),
    Sketcher.Constraint("Equal", 6, 7),
    Sketcher.Constraint("Equal", 7, 8),
    Sketcher.Constraint("Equal", 8, 9),
    Sketcher.Constraint("Equal", 9, 10),
    Sketcher.Constraint("Equal", 10, 11),
    Sketcher.Constraint("Horizontal", 0, 3, 1, 3),
    Sketcher.Constraint("Horizontal", 2, 3, 3, 3),
    Sketcher.Constraint("Horizontal", 4, 3, 5, 3),
    Sketcher.Constraint("Horizontal", 5, 3, 6, 3),
    Sketcher.Constraint("Horizontal", 7, 3, 8, 3),
    Sketcher.Constraint("Horizontal", 8, 3, 11, 3),
    Sketcher.Constraint("Vertical", 1, 3, 2, 3),
    Sketcher.Constraint("Vertical", 0, 3, 3, 3),
    Sketcher.Constraint("Vertical", 6, 3, 7, 3),
    Sketcher.Constraint("Vertical", 5, 3, 8, 3),
    Sketcher.Constraint("Vertical", 8, 3, 9, 3),
    Sketcher.Constraint("Vertical", 10, 3, 11, 3),
    Sketcher.Constraint("Diameter", 0, Q("3.4 mm")),
    Sketcher.Constraint("DistanceY", -1, 1, 0, 3, Q("123 mm")),
    Sketcher.Constraint("DistanceY", -1, 1, 2, 3, Q("201 mm")),
    Sketcher.Constraint("DistanceX", 0, 3, 1, 3, Q("78 mm")),
    Sketcher.Constraint("DistanceX", -1, 1, 5, 3, Q("165.1 mm")),
    Sketcher.Constraint("DistanceX", 10, 3, 0, 3, Q("72.4 mm")),
    Sketcher.Constraint("DistanceX", -1, 1, 0, 3, Q("82.56 mm")),
    Sketcher.Constraint("DistanceX", -1, 1, 4, 3, Q("33.02 mm")),
    Sketcher.Constraint("DistanceY", -1, 1, 4, 3, Q("237.83 mm")),
    Sketcher.Constraint("DistanceX", -1, 1, 6, 3, Q("237.49 mm")),
    Sketcher.Constraint("DistanceY", -1, 1, 7, 3, Q("80.35 mm")),
    Sketcher.Constraint("DistanceY", -1, 1, 9, 3, Q("14.31 mm")),
    Sketcher.Constraint("DistanceY", -1, 1, 10, 3, Q("34.63 mm")),
])
sketch7.setExpression("Constraints[23]", "Params.sketch7_diameter")
pocket1 = body.newObject("PartDesign::Pocket", "Pocket")
pocket1.Profile = sketch7
pocket1.Type = "ThroughAll"

sketch8 = body.newObject("Sketcher::SketchObject", "Sketch007")
sketch8.AttachmentSupport = (doc.getObject("XY_Plane"), [""])
sketch8.MapMode = "FlatFace"
sketch8.AttachmentOffset = App.Placement(V(0, 0, 1.6), App.Rotation())
sketch8.addGeometry([
    Part.LineSegment(V(78, 224, 0), V(78, 212, 0)),
    Part.LineSegment(V(78, 212, 0), V(147, 212, 0)),
    Part.LineSegment(V(147, 212, 0), V(147, 224, 0)),
    Part.LineSegment(V(147, 224, 0), V(78, 224, 0)),
    Part.LineSegment(V(62, 201, 0), V(62, 132, 0)),
    Part.LineSegment(V(62, 132, 0), V(74, 132, 0)),
    Part.LineSegment(V(74, 132, 0), V(74, 201, 0)),
    Part.LineSegment(V(74, 201, 0), V(62, 201, 0)),
], False)
sketch8.addConstraint([
    Sketcher.Constraint("Coincident", 0, 2, 1, 1),
    Sketcher.Constraint("Coincident", 1, 2, 2, 1),
    Sketcher.Constraint("Coincident", 2, 2, 3, 1),
    Sketcher.Constraint("Coincident", 3, 2, 0, 1),
    Sketcher.Constraint("Coincident", 4, 2, 5, 1),
    Sketcher.Constraint("Coincident", 5, 2, 6, 1),
    Sketcher.Constraint("Coincident", 6, 2, 7, 1),
    Sketcher.Constraint("Coincident", 7, 2, 4, 1),
    Sketcher.Constraint("Vertical", 0),
    Sketcher.Constraint("Horizontal", 1),
    Sketcher.Constraint("Vertical", 2),
    Sketcher.Constraint("Horizontal", 3),
    Sketcher.Constraint("Vertical", 4),
    Sketcher.Constraint("Horizontal", 5),
    Sketcher.Constraint("Vertical", 6),
    Sketcher.Constraint("Horizontal", 7),
    Sketcher.Constraint("Equal", 7, 0),
    Sketcher.Constraint("Equal", 3, 4),
    Sketcher.Constraint("DistanceX", 1, 1, 1, 2, Q("69 mm")),
    Sketcher.Constraint("DistanceX", 5, 1, 5, 2, Q("12 mm")),
    Sketcher.Constraint("DistanceX", -1, 1, 0, 2, Q("78 mm")),
    Sketcher.Constraint("DistanceX", -1, 1, 4, 2, Q("62 mm")),
    Sketcher.Constraint("DistanceY", -1, 1, 0, 2, Q("211.5 mm")),
    Sketcher.Constraint("DistanceY", -1, 1, 4, 2, Q("132.25 mm")),
])
sketch8.setExpression("Constraints[18]", "Params.sketch8_width")
sketch8.setExpression("Constraints[19]", "Params.sketch8_width2")
pad7 = body.newObject("PartDesign::Pad", "Pad006")
pad7.Profile = sketch8
pad7.setExpression("Length", "Params.pad7_length")

sketch9 = body.newObject("Sketcher::SketchObject", "Sketch008")
sketch9.AttachmentSupport = (doc.getObject("XY_Plane"), [""])
sketch9.MapMode = "FlatFace"
sketch9.AttachmentOffset = App.Placement(V(0, 0, 12.6), App.Rotation())
sketch9.addGeometry([
    Part.LineSegment(V(45.6, 20.6, 0), V(45.6, 18.9, 0)),
    Part.LineSegment(V(45.6, 18.9, 0), V(56.9, 18.9, 0)),
    Part.LineSegment(V(56.9, 18.9, 0), V(56.9, 20.6, 0)),
    Part.LineSegment(V(56.9, 20.6, 0), V(45.6, 20.6, 0)),
    Part.LineSegment(V(58.7, 20.6, 0), V(58.7, 18.9, 0)),
    Part.LineSegment(V(58.7, 18.9, 0), V(129.8, 18.9, 0)),
    Part.LineSegment(V(129.8, 18.9, 0), V(129.8, 20.6, 0)),
    Part.LineSegment(V(129.8, 20.6, 0), V(58.7, 20.6, 0)),
], False)
sketch9.addConstraint([
    Sketcher.Constraint("Coincident", 0, 2, 1, 1),
    Sketcher.Constraint("Coincident", 1, 2, 2, 1),
    Sketcher.Constraint("Coincident", 2, 2, 3, 1),
    Sketcher.Constraint("Coincident", 3, 2, 0, 1),
    Sketcher.Constraint("Coincident", 4, 2, 5, 1),
    Sketcher.Constraint("Coincident", 5, 2, 6, 1),
    Sketcher.Constraint("Coincident", 6, 2, 7, 1),
    Sketcher.Constraint("Coincident", 7, 2, 4, 1),
    Sketcher.Constraint("Vertical", 0),
    Sketcher.Constraint("Horizontal", 1),
    Sketcher.Constraint("Vertical", 2),
    Sketcher.Constraint("Horizontal", 3),
    Sketcher.Constraint("Vertical", 4),
    Sketcher.Constraint("Horizontal", 5),
    Sketcher.Constraint("Vertical", 6),
    Sketcher.Constraint("Horizontal", 7),
    Sketcher.Constraint("Horizontal", 1, 2, 4, 2),
    Sketcher.Constraint("Horizontal", 3, 2, 6, 2),
    Sketcher.Constraint("DistanceX", 1, 1, 1, 2, Q("11.2 mm")),
    Sketcher.Constraint("DistanceY", 0, 2, 0, 1, Q("1.6 mm")),
    Sketcher.Constraint("DistanceX", 1, 2, 5, 2, Q("73 mm")),
    Sketcher.Constraint("DistanceX", 5, 1, 5, 2, Q("71.15 mm")),
    Sketcher.Constraint("DistanceX", -1, 1, 4, 2, Q("58.7 mm")),
    Sketcher.Constraint("DistanceY", -1, 1, 0, 2, Q("18.95 mm")),
])
sketch9.setExpression("Constraints[18]", "Params.sketch9_width")
sketch9.setExpression("Constraints[19]", "Params.sketch9_height")
sketch9.setExpression("Constraints[21]", "Params.sketch9_width2")
pocket2 = body.newObject("PartDesign::Pocket", "Pocket001")
pocket2.Profile = sketch9
pocket2.setExpression("Length", "Params.pocket2_length")

doc.recompute()
